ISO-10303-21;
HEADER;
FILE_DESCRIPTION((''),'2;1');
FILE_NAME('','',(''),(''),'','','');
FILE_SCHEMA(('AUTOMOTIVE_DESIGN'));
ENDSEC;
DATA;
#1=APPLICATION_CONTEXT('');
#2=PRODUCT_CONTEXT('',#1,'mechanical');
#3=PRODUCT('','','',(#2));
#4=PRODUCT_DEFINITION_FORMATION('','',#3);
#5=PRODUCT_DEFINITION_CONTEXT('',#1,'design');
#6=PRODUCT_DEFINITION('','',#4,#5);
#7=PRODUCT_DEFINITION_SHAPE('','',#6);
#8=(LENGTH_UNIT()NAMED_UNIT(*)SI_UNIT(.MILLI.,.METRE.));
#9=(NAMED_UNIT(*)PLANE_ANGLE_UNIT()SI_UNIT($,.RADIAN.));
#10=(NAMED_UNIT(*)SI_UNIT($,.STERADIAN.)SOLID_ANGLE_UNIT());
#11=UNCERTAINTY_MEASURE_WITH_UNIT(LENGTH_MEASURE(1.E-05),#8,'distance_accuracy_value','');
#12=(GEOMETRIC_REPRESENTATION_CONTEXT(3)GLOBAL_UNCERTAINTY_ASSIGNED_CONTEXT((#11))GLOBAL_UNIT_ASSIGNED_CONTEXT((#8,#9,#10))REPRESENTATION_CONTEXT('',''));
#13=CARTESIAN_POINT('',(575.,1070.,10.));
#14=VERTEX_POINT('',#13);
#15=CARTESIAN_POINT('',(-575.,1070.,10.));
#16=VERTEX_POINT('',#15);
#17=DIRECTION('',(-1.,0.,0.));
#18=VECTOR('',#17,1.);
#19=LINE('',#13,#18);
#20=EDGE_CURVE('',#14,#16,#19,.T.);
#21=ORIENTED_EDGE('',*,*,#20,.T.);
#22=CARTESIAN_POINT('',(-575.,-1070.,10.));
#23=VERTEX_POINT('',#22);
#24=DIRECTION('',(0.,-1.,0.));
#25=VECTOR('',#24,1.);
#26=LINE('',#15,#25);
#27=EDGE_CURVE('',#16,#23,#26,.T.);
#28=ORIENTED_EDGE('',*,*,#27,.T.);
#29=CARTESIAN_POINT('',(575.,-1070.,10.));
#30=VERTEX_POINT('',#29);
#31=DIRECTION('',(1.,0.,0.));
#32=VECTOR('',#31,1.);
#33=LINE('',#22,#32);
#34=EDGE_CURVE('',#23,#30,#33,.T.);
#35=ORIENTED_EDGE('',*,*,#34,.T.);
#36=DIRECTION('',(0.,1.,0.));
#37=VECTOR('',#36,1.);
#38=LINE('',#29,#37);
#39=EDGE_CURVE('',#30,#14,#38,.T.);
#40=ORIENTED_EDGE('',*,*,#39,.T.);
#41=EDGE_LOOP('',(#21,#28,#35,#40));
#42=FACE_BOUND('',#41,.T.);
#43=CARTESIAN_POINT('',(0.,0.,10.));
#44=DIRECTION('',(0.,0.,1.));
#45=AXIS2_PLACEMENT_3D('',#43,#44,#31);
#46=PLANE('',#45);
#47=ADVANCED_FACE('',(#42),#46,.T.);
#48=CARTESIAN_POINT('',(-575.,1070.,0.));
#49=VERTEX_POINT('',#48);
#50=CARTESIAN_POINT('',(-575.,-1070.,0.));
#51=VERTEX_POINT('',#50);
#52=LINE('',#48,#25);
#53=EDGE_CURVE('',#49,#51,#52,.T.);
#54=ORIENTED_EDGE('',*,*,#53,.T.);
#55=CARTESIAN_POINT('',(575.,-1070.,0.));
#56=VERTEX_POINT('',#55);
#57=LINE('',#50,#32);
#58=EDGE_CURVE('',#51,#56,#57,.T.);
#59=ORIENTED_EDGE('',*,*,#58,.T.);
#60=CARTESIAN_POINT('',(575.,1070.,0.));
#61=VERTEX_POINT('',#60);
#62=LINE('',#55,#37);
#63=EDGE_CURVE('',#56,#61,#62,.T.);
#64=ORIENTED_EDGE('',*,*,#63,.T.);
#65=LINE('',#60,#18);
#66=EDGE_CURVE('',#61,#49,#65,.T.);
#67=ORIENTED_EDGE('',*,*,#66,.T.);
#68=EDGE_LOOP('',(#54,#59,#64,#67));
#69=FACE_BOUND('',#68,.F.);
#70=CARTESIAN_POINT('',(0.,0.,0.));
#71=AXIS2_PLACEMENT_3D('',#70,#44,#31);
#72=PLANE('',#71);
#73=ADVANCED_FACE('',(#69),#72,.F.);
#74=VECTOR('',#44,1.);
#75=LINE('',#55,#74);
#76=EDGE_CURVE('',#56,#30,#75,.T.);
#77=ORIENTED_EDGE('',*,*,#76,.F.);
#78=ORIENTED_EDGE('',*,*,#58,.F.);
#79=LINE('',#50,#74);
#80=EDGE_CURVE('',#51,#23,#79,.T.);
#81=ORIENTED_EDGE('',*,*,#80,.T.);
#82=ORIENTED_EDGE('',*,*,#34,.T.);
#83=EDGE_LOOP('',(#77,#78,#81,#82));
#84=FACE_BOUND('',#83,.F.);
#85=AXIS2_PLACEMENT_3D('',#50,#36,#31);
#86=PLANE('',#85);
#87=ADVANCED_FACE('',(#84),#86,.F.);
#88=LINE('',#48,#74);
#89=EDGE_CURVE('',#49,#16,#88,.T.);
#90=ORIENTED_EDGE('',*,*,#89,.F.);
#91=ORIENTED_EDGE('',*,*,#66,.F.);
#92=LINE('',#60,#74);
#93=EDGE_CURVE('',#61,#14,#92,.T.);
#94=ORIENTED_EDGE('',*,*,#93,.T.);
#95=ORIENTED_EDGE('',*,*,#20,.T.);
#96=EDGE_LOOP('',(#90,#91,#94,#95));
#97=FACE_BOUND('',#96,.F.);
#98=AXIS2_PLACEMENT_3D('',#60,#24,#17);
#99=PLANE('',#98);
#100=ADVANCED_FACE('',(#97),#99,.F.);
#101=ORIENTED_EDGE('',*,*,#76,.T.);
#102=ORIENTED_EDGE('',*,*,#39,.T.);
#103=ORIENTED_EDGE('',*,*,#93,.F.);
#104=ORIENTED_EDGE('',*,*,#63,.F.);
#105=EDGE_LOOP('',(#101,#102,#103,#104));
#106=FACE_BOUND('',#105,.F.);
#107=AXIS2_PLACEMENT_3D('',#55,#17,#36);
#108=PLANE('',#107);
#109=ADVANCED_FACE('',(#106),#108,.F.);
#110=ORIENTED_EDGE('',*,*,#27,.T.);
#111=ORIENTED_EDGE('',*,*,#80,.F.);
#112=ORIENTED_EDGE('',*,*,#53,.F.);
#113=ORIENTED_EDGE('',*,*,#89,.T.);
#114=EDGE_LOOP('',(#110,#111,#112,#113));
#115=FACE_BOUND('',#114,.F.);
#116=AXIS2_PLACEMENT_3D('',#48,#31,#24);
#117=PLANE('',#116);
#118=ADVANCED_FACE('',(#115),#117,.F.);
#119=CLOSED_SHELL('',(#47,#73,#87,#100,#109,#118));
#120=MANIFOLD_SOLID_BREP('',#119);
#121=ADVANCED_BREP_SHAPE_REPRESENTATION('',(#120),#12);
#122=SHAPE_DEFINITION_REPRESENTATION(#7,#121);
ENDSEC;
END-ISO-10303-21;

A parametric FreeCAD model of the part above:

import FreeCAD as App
import Part
import Sketcher

V = App.Vector


def add_polygon(sketch, points):
    """Adds a closed chain of lines whose ends are joined by coincident constraints."""
    first, n = sketch.GeometryCount, len(points)
    for a, b in zip(points, points[1:] + points[:1]):
        sketch.addGeometry(Part.LineSegment(App.Vector(*a, 0), App.Vector(*b, 0)), False)
    for i in range(n):
        sketch.addConstraint(Sketcher.Constraint("Coincident", first + i, 2, first + (i + 1) % n, 1))

doc = App.newDocument("Part")
params = doc.addObject("Spreadsheet::Sheet", "Params")
for row, (alias, value) in enumerate([
    ("sketch1_width", "1150 mm"),
    ("sketch1_height", "2140 mm"),
    ("pad1_length", "10 mm"),
], start=1):
    params.set(f"A{row}", alias)
    params.set(f"B{row}", "=" + value)
    params.setAlias(f"B{row}", alias)

body = doc.addObject("PartDesign::Body", "Body")

# Sketch on XY plane
sketch1 = body.newObject("Sketcher::SketchObject", "Sketch")
sketch1.AttachmentSupport = (doc.getObject("XY_Plane"), [""])
sketch1.MapMode = "FlatFace"
add_polygon(sketch1, [(-575, 1070), (-575, -1070), (575, -1070), (575, 1070)])  # lines 0-3
sketch1.addConstraint([
    Sketcher.Constraint("Vertical", 0),
    Sketcher.Constraint("Horizontal", 1),
    Sketcher.Constraint("Vertical", 2),
    Sketcher.Constraint("Horizontal", 3),
    Sketcher.Constraint("Symmetric", 0, 2, 2, 2, -1, 1),
    Sketcher.Constraint("DistanceX", 1, 1, 1, 2, 1150.0),
    Sketcher.Constraint("DistanceY", 0, 2, 0, 1, 2140.0),
])
sketch1.setExpression("Constraints[9]", "Params.sketch1_width")
sketch1.setExpression("Constraints[10]", "Params.sketch1_height")
pad1 = body.newObject("PartDesign::Pad", "Pad")
pad1.Profile = sketch1
pad1.setExpression("Length", "Params.pad1_length")

doc.recompute()
